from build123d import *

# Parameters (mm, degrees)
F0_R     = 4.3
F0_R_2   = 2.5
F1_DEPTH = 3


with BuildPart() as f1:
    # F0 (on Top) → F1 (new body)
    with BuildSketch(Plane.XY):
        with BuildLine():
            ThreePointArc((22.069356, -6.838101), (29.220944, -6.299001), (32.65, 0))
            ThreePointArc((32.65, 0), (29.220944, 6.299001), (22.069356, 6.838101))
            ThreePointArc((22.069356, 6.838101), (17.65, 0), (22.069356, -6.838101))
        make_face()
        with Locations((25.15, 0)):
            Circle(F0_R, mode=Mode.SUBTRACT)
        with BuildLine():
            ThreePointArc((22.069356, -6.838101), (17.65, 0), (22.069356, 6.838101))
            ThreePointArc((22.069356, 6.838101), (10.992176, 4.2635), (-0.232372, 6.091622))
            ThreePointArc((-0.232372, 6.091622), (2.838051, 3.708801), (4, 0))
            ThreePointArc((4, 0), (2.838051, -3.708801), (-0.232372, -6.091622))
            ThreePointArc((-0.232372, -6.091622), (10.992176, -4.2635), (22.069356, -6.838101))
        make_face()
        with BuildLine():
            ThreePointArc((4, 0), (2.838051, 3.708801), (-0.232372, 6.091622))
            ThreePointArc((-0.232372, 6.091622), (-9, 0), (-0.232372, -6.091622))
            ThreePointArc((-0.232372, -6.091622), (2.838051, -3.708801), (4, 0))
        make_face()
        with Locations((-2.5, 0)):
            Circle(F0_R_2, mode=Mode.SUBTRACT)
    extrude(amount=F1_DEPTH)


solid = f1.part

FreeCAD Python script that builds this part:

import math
import FreeCAD as App
import Part
import Sketcher
Q = App.Units.Quantity

doc = App.newDocument("Part")
body = doc.addObject("PartDesign::Body", "Body")

sketch1 = body.newObject("Sketcher::SketchObject", "Sketch")
sketch1.AttachmentSupport = (doc.getObject("XY_Plane"), [""])
sketch1.MapMode = "FlatFace"
sketch1.addGeometry([
    Part.ArcOfCircle(Part.Circle(App.Vector(25.15, 0, 0), App.Vector(0, 0, 1), 7.5), math.radians(-114.252122), math.radians(0.000001)),
    Part.ArcOfCircle(Part.Circle(App.Vector(25.15, 0, 0), App.Vector(0, 0, 1), 7.5), math.radians(-0.000001), math.radians(114.252122)),
    Part.ArcOfCircle(Part.Circle(App.Vector(10.010023, 33.606195, 0), App.Vector(0, 0, 1), 29.359128), math.radians(-110.417956), math.radians(-65.74789)),
    Part.ArcOfCircle(Part.Circle(App.Vector(-2.5, 0, 0), App.Vector(0, 0, 1), 6.5), math.radians(69.582036), math.radians(290.417964)),
    Part.ArcOfCircle(Part.Circle(App.Vector(10.010023, -33.606195, 0), App.Vector(0, 0, 1), 29.359128), math.radians(65.74789), math.radians(110.417956)),
    Part.Circle(App.Vector(-2.5, 0, 0), App.Vector(0, 0, 1), 2.5),
    Part.Circle(App.Vector(25.15, 0, 0), App.Vector(0, 0, 1), 4.3),
], False)
sketch1.addConstraint([
    Sketcher.Constraint("Tangent", 0, 2, 1, 1),
    Sketcher.Constraint("Tangent", 1, 2, 2, 2),
    Sketcher.Constraint("Tangent", 2, 1, 3, 1),
    Sketcher.Constraint("Tangent", 3, 2, 4, 2),
    Sketcher.Constraint("Tangent", 4, 1, 0, 1),
    Sketcher.Constraint("Coincident", 5, 3, 3, 3),
    Sketcher.Constraint("Coincident", 6, 3, 0, 3),
    Sketcher.Constraint("Equal", 0, 1),
    Sketcher.Constraint("Equal", 2, 4),
    Sketcher.Constraint("Symmetric", 2, 3, 4, 3, -1),
    Sketcher.Constraint("PointOnObject", 0, 2, -1),
    Sketcher.Constraint("Diameter", 5, Q("5 mm")),
    Sketcher.Constraint("Diameter", 6, Q("8.6 mm")),
    Sketcher.Constraint("Radius", 0, Q("7.5 mm")),
    Sketcher.Constraint("Radius", 3, Q("6.5 mm")),
    Sketcher.Constraint("DistanceX", 3, 3, -1, 1, Q("2.5 mm")),
    Sketcher.Constraint("DistanceX", -1, 1, 0, 3, Q("25.15 mm")),
    Sketcher.Constraint("Radius", 2, Q("29.359128 mm")),
])
pad1 = body.newObject("PartDesign::Pad", "Pad")
pad1.Profile = sketch1
pad1.Length = 3

doc.recompute()
